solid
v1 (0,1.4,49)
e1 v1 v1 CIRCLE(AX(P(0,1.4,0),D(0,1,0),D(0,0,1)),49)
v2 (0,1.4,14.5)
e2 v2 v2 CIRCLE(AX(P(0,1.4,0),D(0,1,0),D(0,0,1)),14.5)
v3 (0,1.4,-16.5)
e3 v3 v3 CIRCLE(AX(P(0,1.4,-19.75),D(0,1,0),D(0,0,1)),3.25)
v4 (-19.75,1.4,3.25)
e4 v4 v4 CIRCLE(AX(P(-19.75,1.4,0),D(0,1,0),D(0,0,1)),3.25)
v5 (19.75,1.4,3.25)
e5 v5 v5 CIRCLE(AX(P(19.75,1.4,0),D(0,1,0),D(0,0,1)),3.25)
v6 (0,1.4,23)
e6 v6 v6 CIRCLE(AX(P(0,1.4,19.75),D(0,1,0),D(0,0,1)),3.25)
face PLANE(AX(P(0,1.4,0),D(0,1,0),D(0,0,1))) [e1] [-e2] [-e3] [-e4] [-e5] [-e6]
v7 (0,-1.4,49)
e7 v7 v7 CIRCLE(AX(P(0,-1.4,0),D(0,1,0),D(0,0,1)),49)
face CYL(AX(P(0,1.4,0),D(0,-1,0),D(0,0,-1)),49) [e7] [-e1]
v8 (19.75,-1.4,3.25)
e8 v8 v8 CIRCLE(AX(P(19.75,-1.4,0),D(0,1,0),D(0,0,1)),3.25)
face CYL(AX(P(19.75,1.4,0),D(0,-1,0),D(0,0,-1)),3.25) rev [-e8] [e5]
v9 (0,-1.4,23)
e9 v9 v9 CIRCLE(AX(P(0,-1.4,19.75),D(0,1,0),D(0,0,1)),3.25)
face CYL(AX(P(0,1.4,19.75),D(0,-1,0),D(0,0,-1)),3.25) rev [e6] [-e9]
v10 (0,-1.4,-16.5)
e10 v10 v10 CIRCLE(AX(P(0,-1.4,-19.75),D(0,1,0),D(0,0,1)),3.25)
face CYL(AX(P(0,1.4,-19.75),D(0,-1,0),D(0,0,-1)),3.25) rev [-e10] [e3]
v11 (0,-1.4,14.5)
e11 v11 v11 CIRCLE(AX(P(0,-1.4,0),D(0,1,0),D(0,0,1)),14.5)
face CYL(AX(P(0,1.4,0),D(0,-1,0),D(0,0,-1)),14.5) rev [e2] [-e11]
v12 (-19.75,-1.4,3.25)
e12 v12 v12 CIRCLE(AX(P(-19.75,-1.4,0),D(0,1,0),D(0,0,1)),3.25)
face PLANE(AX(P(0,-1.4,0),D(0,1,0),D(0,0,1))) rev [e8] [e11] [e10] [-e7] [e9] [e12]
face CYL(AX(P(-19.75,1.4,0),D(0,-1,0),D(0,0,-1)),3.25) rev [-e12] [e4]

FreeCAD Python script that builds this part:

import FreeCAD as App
import Part
import Sketcher

doc = App.newDocument("Part")
body = doc.addObject("PartDesign::Body", "Body")

# Sketch on XZ plane
sketch1 = body.newObject("Sketcher::SketchObject", "Sketch")
sketch1.AttachmentSupport = (doc.getObject("XZ_Plane"), [""])
sketch1.MapMode = "FlatFace"
sketch1.addGeometry([
    Part.Circle(App.Vector(0, 0, 0), App.Vector(0, 0, 1), 49),  # 0
    Part.Circle(App.Vector(0, 19.75, 0), App.Vector(0, 0, 1), 3.25),  # 1
    Part.Circle(App.Vector(-19.75, 0, 0), App.Vector(0, 0, 1), 3.25),  # 2
    Part.Circle(App.Vector(0, 0, 0), App.Vector(0, 0, 1), 14.5),  # 3
    Part.Circle(App.Vector(19.75, 0, 0), App.Vector(0, 0, 1), 3.25),  # 4
    Part.Circle(App.Vector(0, -19.75, 0), App.Vector(0, 0, 1), 3.25),  # 5
], False)
sketch1.addConstraint([
    Sketcher.Constraint("Coincident", 0, 3, -1, 1),
    Sketcher.Constraint("Coincident", 3, 3, -1, 1),
    Sketcher.Constraint("Equal", 1, 2),
    Sketcher.Constraint("Equal", 2, 4),
    Sketcher.Constraint("Equal", 4, 5),
    Sketcher.Constraint("Symmetric", 2, 3, 4, 3, -1, 1),
    Sketcher.Constraint("Symmetric", 1, 3, 5, 3, -1, 1),
    Sketcher.Constraint("PointOnObject", 1, 3, -2),
    Sketcher.Constraint("PointOnObject", 2, 3, -1),
    Sketcher.Constraint("Diameter", 0, 98.0),
    Sketcher.Constraint("Diameter", 3, 29.0),
    Sketcher.Constraint("Diameter", 1, 6.5),
    Sketcher.Constraint("DistanceX", 2, 3, 4, 3, 39.5),
    Sketcher.Constraint("DistanceY", 5, 3, 1, 3, 39.5),
])
pad1 = body.newObject("PartDesign::Pad", "Pad")
pad1.Profile = sketch1
pad1.Length = 2.8
pad1.Midplane = True

doc.recompute()
